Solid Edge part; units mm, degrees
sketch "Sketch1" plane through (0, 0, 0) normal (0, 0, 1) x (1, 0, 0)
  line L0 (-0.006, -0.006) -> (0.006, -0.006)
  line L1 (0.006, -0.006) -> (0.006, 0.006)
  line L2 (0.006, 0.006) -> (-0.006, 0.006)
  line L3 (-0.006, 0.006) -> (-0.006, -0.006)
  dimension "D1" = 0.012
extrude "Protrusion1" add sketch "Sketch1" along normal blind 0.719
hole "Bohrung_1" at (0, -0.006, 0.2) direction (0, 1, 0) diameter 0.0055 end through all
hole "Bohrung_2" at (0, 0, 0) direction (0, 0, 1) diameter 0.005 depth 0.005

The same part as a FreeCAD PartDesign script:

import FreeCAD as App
import Part
import Sketcher

V = App.Vector
Q = App.Units.Quantity

doc = App.newDocument("Part")
body = doc.addObject("PartDesign::Body", "Body")

sketch1 = doc.addObject("Sketcher::SketchObject", "Sketch")
body.addObject(sketch1)
sketch1.AttachmentSupport = (doc.XY_Plane, [""])
sketch1.MapMode = "FlatFace"
sketch1.addGeometry([
    Part.LineSegment(V(-0.006, 0.006, 0), V(-0.006, -0.006, 0)),
    Part.LineSegment(V(-0.006, -0.006, 0), V(0.006, -0.006, 0)),
    Part.LineSegment(V(0.006, -0.006, 0), V(0.006, 0.006, 0)),
    Part.LineSegment(V(0.006, 0.006, 0), V(-0.006, 0.006, 0)),
], False)
sketch1.addConstraint([
    Sketcher.Constraint("Coincident", 0, 2, 1, 1),
    Sketcher.Constraint("Coincident", 1, 2, 2, 1),
    Sketcher.Constraint("Coincident", 2, 2, 3, 1),
    Sketcher.Constraint("Coincident", 3, 2, 0, 1),
    Sketcher.Constraint("Vertical", 0),
    Sketcher.Constraint("Horizontal", 1),
    Sketcher.Constraint("Vertical", 2),
    Sketcher.Constraint("Horizontal", 3),
    Sketcher.Constraint("Symmetric", 0, 2, 2, 2, -1, 1),
    Sketcher.Constraint("Equal", 3, 0),
    Sketcher.Constraint("DistanceX", 0, 2, -1, 1, Q("0.006 mm")),
])
pad1 = doc.addObject("PartDesign::Pad", "Pad")
body.addObject(pad1)
pad1.Profile = sketch1
pad1.Length = 0.719

sketch2 = doc.addObject("Sketcher::SketchObject", "Sketch001")
body.addObject(sketch2)
sketch2.AttachmentSupport = (doc.XZ_Plane, [""])
sketch2.MapMode = "FlatFace"
sketch2.AttachmentOffset = App.Placement(V(0, 0, 0.006), App.Rotation())
sketch2.addGeometry(Part.Circle(V(0, 0.2, 0), V(0, 0, 1), 0.0027), False)
sketch2.addConstraint([
    Sketcher.Constraint("PointOnObject", 0, 3, -2),
    Sketcher.Constraint("Diameter", 0, Q("0.0055 mm")),
    Sketcher.Constraint("DistanceY", -1, 1, 0, 3, Q("0.2 mm")),
])
doc.recompute()
hole = doc.addObject("PartDesign::Hole", "Hole")
body.addObject(hole)
hole.Profile = sketch2
hole.ThreadType = "None"
hole.Diameter = 0.0055
hole.DepthType = "ThroughAll"

sketch3 = doc.addObject("Sketcher::SketchObject", "Sketch002")
body.addObject(sketch3)
sketch3.AttachmentSupport = (doc.XY_Plane, [""])
sketch3.MapMode = "FlatFace"
sketch3.addGeometry(Part.Circle(V(0, 0, 0), V(0, 0, 1), 0.0025), False)
sketch3.addConstraint([
    Sketcher.Constraint("Coincident", 0, 3, -1, 1),
    Sketcher.Constraint("Diameter", 0, Q("0.005 mm")),
])
doc.recompute()
hole2 = doc.addObject("PartDesign::Hole", "Hole001")
body.addObject(hole2)
hole2.Profile = sketch3
hole2.ThreadType = "None"
hole2.Diameter = 0.005
hole2.DepthType = "Dimension"
hole2.Depth = 0.005
hole2.DrillPoint = "Flat"
hole2.Reversed = True

doc.recompute()
